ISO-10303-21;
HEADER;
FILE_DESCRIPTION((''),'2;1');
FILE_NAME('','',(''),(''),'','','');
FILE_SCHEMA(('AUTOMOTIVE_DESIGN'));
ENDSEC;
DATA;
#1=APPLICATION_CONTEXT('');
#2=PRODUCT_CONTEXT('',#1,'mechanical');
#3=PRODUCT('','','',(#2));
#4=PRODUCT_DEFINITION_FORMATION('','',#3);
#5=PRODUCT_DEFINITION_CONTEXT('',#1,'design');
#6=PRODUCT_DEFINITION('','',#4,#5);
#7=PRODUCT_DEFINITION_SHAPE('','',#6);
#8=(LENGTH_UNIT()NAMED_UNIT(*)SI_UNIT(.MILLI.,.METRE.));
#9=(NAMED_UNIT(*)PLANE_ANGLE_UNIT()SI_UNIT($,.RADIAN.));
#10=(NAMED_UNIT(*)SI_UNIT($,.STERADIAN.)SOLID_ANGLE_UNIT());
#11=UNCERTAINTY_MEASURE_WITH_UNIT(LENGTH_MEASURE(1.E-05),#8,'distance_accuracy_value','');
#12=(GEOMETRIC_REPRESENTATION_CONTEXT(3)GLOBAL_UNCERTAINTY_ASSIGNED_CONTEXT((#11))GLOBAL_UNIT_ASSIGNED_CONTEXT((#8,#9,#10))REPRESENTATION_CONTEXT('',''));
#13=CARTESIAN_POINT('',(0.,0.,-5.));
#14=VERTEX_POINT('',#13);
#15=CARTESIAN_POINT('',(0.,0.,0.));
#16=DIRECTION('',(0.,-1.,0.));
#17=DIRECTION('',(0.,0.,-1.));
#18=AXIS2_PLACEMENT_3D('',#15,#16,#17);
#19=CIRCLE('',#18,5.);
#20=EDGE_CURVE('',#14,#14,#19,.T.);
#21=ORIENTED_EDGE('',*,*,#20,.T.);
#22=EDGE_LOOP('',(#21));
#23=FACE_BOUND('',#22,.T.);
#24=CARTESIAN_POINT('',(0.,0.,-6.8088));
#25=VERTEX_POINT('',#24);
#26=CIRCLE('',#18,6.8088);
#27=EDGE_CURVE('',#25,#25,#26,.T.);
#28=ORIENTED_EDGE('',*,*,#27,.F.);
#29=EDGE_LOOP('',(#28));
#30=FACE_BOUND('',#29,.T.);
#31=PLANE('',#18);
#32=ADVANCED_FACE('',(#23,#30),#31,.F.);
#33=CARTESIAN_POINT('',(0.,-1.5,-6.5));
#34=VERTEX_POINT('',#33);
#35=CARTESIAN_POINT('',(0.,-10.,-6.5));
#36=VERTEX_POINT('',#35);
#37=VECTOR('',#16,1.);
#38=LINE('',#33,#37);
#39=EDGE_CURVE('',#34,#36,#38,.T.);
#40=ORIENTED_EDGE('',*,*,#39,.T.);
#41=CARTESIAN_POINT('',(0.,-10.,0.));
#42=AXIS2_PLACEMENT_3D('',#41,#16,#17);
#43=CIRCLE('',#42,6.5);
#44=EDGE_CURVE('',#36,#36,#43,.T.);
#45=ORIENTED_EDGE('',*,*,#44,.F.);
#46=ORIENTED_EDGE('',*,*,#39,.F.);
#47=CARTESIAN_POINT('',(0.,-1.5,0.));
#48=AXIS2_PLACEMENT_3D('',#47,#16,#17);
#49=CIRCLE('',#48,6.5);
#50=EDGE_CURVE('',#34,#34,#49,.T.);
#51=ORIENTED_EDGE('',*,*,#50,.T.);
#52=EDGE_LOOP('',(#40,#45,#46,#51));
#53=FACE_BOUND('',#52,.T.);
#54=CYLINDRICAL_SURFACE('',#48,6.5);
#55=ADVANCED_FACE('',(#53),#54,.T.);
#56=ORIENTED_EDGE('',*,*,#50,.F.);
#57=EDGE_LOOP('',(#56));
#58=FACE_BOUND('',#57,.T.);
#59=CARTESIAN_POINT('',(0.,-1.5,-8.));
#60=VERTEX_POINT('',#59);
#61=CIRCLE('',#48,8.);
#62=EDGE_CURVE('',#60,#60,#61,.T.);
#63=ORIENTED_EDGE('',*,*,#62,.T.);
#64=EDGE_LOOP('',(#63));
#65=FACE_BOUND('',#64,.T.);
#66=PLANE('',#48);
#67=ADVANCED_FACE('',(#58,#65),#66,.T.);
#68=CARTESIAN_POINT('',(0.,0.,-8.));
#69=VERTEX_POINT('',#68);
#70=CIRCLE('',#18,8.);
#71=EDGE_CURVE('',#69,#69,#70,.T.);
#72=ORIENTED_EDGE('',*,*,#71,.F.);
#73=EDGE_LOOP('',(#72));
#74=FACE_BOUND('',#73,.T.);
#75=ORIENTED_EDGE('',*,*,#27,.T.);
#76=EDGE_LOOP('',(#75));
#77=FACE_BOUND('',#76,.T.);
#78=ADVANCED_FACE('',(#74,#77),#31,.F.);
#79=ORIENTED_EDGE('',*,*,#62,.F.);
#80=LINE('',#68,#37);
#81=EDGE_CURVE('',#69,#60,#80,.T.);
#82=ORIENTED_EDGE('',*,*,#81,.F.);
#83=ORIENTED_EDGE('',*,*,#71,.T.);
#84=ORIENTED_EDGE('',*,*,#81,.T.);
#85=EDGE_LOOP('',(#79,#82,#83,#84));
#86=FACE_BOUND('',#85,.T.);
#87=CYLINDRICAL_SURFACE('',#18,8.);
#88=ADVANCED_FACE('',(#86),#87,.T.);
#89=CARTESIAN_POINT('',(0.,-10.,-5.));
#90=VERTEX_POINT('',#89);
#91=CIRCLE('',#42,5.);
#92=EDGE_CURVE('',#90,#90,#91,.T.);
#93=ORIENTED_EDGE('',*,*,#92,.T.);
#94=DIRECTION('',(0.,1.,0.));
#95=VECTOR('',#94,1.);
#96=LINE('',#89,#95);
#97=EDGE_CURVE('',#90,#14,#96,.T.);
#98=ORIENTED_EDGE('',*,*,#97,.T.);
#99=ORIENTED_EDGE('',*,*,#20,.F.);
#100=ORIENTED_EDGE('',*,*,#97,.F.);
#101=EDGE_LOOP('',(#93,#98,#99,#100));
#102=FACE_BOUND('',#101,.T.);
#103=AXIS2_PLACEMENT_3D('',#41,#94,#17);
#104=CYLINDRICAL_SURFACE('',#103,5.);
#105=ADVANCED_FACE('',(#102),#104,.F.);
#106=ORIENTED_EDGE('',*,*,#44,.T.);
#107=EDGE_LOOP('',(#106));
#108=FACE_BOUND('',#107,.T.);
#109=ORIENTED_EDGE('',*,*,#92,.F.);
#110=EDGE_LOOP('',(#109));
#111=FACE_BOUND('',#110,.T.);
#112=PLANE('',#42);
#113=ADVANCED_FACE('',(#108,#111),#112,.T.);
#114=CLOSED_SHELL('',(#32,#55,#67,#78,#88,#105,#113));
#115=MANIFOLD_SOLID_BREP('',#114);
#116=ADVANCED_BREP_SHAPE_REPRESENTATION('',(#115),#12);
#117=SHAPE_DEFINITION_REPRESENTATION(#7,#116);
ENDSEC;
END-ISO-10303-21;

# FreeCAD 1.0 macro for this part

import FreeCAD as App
import Part
import Sketcher


def add_polygon(sketch, points):
    """Adds a closed chain of lines whose ends are joined by coincident constraints."""
    first, n = sketch.GeometryCount, len(points)
    for a, b in zip(points, points[1:] + points[:1]):
        sketch.addGeometry(Part.LineSegment(App.Vector(*a, 0), App.Vector(*b, 0)), False)
    for i in range(n):
        sketch.addConstraint(Sketcher.Constraint("Coincident", first + i, 2, first + (i + 1) % n, 1))

doc = App.newDocument("Part")
body = doc.addObject("PartDesign::Body", "Body")

# Sketch on YZ plane
sketch1 = body.newObject("Sketcher::SketchObject", "Sketch")
sketch1.AttachmentSupport = (doc.getObject("YZ_Plane"), [""])
sketch1.MapMode = "FlatFace"
add_polygon(sketch1, [(0, -8), (0, -5), (-10, -5), (-10, -6.5), (-1.5, -6.5), (-1.5, -8)])  # lines 0-5
sketch1.addConstraint([
    Sketcher.Constraint("Vertical", 0),
    Sketcher.Constraint("Horizontal", 1),
    Sketcher.Constraint("Vertical", 2),
    Sketcher.Constraint("Horizontal", 3),
    Sketcher.Constraint("Vertical", 4),
    Sketcher.Constraint("Horizontal", 5),
    Sketcher.Constraint("PointOnObject", 0, 2, -2),
    Sketcher.Constraint("Equal", 5, 2),
    Sketcher.Constraint("Equal", 2, 4),
    Sketcher.Constraint("DistanceX", 1, 2, 1, 1, 10.0),
    Sketcher.Constraint("DistanceX", 5, 1, 5, 2, 1.5),
    Sketcher.Constraint("DistanceY", 0, 2, -1, 1, 5.0),
])
revolution = body.newObject("PartDesign::Revolution", "Revolution")
revolution.Profile = sketch1
revolution.ReferenceAxis = (sketch1, ["H_Axis"])
revolution.Angle = 360

doc.recompute()
